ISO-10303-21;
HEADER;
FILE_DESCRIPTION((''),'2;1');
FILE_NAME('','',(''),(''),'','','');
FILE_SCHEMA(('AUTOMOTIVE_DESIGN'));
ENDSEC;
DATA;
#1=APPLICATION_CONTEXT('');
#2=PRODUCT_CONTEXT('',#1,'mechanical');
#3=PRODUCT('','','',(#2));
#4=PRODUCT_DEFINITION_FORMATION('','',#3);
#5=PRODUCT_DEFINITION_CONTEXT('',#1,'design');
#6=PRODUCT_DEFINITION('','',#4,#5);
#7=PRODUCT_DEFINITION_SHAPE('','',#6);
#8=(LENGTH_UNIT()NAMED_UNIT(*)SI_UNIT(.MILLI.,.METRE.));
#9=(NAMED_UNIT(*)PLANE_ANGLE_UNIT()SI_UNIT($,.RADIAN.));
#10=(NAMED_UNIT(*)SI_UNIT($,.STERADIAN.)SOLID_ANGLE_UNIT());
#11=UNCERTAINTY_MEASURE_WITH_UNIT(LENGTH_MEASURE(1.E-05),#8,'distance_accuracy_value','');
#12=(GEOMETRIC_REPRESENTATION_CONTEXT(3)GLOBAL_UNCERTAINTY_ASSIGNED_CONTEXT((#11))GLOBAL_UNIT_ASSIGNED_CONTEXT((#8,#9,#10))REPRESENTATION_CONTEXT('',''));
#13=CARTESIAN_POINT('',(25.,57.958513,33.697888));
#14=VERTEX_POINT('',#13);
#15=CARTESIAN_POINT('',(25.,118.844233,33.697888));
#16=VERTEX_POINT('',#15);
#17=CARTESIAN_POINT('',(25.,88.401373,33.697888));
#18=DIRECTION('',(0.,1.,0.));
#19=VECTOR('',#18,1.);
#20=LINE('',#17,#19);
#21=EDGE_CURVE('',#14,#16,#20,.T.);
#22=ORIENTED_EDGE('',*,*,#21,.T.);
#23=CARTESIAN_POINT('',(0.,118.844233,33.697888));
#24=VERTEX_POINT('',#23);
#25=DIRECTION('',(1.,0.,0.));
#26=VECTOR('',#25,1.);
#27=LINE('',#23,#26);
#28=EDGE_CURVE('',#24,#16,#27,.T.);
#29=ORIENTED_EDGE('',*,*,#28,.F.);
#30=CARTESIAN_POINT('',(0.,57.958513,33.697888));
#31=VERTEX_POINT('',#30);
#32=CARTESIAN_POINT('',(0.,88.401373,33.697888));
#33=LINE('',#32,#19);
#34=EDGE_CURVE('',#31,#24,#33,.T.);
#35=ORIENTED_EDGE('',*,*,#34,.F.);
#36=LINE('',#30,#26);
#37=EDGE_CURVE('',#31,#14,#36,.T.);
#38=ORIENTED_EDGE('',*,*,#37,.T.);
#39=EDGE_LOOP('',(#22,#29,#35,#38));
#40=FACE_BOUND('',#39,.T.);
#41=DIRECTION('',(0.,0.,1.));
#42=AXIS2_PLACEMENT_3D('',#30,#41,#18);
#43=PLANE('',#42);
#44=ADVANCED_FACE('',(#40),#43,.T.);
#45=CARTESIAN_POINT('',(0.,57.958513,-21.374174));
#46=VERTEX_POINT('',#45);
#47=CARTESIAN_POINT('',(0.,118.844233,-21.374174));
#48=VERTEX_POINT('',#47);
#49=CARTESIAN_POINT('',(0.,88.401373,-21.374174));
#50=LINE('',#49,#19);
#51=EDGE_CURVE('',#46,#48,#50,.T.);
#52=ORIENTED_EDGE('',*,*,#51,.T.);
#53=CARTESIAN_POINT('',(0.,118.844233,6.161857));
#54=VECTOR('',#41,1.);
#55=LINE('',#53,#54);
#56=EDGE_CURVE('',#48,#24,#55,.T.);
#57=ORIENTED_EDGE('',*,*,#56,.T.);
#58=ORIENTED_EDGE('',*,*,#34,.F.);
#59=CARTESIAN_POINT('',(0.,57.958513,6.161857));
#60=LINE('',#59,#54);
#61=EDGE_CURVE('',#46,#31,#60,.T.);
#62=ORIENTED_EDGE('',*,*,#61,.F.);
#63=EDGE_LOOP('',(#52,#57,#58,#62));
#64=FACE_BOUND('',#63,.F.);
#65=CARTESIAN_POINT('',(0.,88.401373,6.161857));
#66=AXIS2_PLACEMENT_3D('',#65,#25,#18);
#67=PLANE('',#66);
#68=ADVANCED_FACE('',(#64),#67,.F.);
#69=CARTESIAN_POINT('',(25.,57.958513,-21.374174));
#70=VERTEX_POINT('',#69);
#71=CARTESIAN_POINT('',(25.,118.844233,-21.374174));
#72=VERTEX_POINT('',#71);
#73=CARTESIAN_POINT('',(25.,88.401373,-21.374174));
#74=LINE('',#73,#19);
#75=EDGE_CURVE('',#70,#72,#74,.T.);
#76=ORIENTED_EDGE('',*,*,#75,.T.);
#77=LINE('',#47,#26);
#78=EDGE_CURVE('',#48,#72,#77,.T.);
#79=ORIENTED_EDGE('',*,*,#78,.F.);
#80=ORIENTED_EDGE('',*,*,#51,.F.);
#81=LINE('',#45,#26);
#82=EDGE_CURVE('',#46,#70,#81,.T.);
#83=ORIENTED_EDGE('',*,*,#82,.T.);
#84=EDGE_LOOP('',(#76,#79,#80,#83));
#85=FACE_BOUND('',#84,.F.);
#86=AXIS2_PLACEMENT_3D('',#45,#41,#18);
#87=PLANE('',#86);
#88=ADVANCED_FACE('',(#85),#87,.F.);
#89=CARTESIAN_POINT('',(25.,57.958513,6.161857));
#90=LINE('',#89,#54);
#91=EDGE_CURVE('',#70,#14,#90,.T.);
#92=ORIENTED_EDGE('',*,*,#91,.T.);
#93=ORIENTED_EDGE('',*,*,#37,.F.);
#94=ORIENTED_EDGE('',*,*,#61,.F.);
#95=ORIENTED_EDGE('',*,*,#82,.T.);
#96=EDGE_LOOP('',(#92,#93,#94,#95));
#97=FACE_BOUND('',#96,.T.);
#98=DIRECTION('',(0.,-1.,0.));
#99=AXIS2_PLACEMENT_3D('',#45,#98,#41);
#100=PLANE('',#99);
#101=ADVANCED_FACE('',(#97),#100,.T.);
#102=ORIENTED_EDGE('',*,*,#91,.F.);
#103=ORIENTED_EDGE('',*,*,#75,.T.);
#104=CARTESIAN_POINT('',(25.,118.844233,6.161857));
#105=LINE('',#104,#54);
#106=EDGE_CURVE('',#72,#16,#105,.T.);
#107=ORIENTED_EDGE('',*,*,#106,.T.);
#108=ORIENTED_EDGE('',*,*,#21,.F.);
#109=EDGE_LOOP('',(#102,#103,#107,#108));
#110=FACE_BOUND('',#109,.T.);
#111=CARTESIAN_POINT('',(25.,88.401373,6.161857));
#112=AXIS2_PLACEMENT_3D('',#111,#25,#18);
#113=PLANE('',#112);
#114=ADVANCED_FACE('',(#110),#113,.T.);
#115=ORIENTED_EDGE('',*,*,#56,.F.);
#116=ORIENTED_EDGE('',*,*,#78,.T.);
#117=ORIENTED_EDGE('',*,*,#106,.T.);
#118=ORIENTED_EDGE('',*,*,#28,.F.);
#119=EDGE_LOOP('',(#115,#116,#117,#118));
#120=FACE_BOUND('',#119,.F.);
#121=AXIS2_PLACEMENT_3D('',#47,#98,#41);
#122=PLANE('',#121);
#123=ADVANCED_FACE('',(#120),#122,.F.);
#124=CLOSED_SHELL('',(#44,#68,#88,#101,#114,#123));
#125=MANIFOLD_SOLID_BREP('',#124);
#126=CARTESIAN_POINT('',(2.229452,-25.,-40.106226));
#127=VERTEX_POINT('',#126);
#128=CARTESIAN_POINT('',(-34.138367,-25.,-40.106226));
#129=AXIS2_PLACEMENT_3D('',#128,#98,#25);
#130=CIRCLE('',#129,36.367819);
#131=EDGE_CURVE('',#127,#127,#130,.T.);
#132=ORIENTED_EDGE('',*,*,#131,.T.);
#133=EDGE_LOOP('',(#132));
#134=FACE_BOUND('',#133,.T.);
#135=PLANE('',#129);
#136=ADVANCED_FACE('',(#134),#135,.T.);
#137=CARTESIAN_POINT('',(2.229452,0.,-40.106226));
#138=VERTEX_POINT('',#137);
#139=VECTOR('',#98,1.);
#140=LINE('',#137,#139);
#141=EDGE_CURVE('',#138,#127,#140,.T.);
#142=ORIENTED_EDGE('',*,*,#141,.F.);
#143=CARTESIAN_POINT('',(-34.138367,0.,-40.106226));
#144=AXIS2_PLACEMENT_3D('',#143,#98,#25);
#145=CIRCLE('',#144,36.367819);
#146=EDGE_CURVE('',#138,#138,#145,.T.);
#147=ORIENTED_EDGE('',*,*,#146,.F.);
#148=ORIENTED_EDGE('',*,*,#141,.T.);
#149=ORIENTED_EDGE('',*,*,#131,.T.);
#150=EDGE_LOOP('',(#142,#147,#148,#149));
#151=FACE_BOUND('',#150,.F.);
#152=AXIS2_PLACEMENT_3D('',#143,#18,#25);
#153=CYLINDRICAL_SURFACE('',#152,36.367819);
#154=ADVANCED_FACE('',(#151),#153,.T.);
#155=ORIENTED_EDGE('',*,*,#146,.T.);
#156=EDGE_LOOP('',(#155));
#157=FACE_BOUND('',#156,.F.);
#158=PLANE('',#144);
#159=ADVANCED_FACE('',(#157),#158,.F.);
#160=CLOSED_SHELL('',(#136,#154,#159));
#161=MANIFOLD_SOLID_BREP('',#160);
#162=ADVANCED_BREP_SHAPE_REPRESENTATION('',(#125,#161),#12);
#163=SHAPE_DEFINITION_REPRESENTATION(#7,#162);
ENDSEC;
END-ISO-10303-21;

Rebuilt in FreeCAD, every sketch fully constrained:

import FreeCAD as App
import Part
import Sketcher

V = App.Vector

doc = App.newDocument("Part")
body = doc.addObject("PartDesign::Body", "Body")

sketch1 = body.newObject("Sketcher::SketchObject", "Sketch")
sketch1.AttachmentSupport = (doc.getObject("XZ_Plane"), [""])
sketch1.MapMode = "FlatFace"
sketch1.addGeometry(Part.Circle(V(-34, -40, 0), V(0, 0, 1), 36), False)
sketch1.addConstraint(Sketcher.Constraint("Diameter", 0, 72.735638))
sketch1.addConstraint(Sketcher.Constraint("DistanceX", 0, 3, -1, 1, 34.138367))
sketch1.addConstraint(Sketcher.Constraint("DistanceY", 0, 3, -1, 1, 40.106226))
pad1 = body.newObject("PartDesign::Pad", "Pad")
pad1.Profile = sketch1
pad1.Length = 25
body2 = doc.addObject("PartDesign::Body", "Body001")

sketch2 = body2.newObject("Sketcher::SketchObject", "Sketch001")
sketch2.AttachmentSupport = (doc.getObject("YZ_Plane001"), [""])
sketch2.MapMode = "FlatFace"
sketch2.addGeometry(Part.LineSegment(V(58, 34, 0), V(58, -21, 0)), False)
sketch2.addGeometry(Part.LineSegment(V(58, -21, 0), V(119, -21, 0)), False)
sketch2.addGeometry(Part.LineSegment(V(119, -21, 0), V(119, 34, 0)), False)
sketch2.addGeometry(Part.LineSegment(V(119, 34, 0), V(58, 34, 0)), False)
sketch2.addConstraint(Sketcher.Constraint("Coincident", 0, 2, 1, 1))
sketch2.addConstraint(Sketcher.Constraint("Coincident", 1, 2, 2, 1))
sketch2.addConstraint(Sketcher.Constraint("Coincident", 2, 2, 3, 1))
sketch2.addConstraint(Sketcher.Constraint("Coincident", 3, 2, 0, 1))
sketch2.addConstraint(Sketcher.Constraint("Vertical", 0))
sketch2.addConstraint(Sketcher.Constraint("Horizontal", 1))
sketch2.addConstraint(Sketcher.Constraint("Vertical", 2))
sketch2.addConstraint(Sketcher.Constraint("Horizontal", 3))
sketch2.addConstraint(Sketcher.Constraint("DistanceX", 1, 1, 1, 2, 60.88572))
sketch2.addConstraint(Sketcher.Constraint("DistanceY", 0, 2, 0, 1, 55.072063))
sketch2.addConstraint(Sketcher.Constraint("DistanceY", -1, 1, 2, 2, 33.697888))
sketch2.addConstraint(Sketcher.Constraint("DistanceX", -1, 1, 0, 2, 57.958513))
pad2 = body2.newObject("PartDesign::Pad", "Pad001")
pad2.Profile = sketch2
pad2.Length = 25

doc.recompute()
